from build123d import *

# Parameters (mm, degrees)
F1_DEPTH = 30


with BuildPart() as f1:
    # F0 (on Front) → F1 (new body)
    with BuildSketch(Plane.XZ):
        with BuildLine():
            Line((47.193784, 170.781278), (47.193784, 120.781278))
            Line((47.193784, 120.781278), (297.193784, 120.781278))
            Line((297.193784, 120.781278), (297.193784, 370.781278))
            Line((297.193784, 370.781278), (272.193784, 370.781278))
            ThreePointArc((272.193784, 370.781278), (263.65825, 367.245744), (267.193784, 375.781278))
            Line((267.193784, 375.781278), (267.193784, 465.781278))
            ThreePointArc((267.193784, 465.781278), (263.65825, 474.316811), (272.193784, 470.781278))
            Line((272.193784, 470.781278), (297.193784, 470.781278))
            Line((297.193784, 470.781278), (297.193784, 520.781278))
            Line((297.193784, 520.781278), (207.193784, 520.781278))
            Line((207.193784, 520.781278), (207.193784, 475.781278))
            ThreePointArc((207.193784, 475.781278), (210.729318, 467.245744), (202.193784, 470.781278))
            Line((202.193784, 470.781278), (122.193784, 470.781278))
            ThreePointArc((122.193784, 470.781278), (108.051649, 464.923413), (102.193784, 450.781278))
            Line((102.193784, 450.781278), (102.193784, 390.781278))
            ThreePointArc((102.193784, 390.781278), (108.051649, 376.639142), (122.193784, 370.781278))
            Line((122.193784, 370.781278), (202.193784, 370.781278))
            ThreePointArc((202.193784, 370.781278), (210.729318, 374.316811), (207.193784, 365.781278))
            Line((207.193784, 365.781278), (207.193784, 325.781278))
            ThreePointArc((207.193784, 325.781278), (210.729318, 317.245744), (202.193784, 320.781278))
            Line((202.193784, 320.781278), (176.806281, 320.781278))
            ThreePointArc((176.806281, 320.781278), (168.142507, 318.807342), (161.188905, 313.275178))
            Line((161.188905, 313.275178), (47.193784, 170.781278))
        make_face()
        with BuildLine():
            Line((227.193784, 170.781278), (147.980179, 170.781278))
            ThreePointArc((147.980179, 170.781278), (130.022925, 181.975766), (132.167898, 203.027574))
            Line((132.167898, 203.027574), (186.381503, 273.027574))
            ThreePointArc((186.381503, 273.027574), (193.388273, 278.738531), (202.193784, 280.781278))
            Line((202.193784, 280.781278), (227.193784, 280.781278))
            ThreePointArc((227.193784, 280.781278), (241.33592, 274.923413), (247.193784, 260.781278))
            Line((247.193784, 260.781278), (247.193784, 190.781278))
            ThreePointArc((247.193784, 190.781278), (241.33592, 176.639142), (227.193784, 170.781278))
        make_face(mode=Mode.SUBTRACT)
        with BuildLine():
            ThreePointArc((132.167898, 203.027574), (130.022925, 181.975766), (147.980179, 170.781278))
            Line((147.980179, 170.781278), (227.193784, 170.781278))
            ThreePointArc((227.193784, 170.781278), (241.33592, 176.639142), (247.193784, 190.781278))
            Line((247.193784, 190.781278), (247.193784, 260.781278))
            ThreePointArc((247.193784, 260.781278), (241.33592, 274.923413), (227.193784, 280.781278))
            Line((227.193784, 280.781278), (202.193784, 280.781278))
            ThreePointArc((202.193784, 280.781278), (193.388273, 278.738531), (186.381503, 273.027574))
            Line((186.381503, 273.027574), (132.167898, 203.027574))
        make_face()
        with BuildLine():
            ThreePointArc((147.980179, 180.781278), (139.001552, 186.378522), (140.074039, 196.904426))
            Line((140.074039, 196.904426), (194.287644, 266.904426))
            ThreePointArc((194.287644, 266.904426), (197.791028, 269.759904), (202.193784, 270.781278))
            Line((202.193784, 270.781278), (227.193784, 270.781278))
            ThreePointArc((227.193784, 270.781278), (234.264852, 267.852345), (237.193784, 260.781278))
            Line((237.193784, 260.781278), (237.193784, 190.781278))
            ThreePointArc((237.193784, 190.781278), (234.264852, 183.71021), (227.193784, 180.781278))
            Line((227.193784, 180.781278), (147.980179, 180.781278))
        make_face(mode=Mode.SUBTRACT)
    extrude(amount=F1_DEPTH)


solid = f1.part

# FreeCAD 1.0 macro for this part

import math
import FreeCAD as App
import Part
import Sketcher
Q = App.Units.Quantity

doc = App.newDocument("Part")
body = doc.addObject("PartDesign::Body", "Body")

# Sketch on XZ plane
sketch1 = body.newObject("Sketcher::SketchObject", "Sketch")
sketch1.AttachmentSupport = (doc.getObject("XZ_Plane"), [""])
sketch1.MapMode = "FlatFace"
sketch1.addGeometry([
    Part.LineSegment(App.Vector(47.193784, 170.781278, 0), App.Vector(47.193784, 120.781278, 0)),  # 0
    Part.LineSegment(App.Vector(47.193784, 120.781278, 0), App.Vector(297.193784, 120.781278, 0)),  # 1
    Part.LineSegment(App.Vector(297.193784, 120.781278, 0), App.Vector(297.193784, 370.781278, 0)),  # 2
    Part.LineSegment(App.Vector(297.193784, 370.781278, 0), App.Vector(272.193784, 370.781278, 0)),  # 3
    Part.ArcOfCircle(Part.Circle(App.Vector(267.193784, 370.781278, 0), App.Vector(0, 0, 1), 5), math.radians(89.999999), math.radians(360.000001)),  # 4
    Part.LineSegment(App.Vector(267.193784, 375.781278, 0), App.Vector(267.193784, 465.781278, 0)),  # 5
    Part.ArcOfCircle(Part.Circle(App.Vector(267.193784, 470.781278, 0), App.Vector(0, 0, 1), 5), math.radians(0.000003), math.radians(269.999997)),  # 6
    Part.LineSegment(App.Vector(272.193784, 470.781278, 0), App.Vector(297.193784, 470.781278, 0)),  # 7
    Part.LineSegment(App.Vector(297.193784, 470.781278, 0), App.Vector(297.193784, 520.781278, 0)),  # 8
    Part.LineSegment(App.Vector(297.193784, 520.781278, 0), App.Vector(207.193784, 520.781278, 0)),  # 9
    Part.LineSegment(App.Vector(207.193784, 520.781278, 0), App.Vector(207.193784, 475.781278, 0)),  # 10
    Part.ArcOfCircle(Part.Circle(App.Vector(207.193784, 470.781278, 0), App.Vector(0, 0, 1), 5), math.radians(179.999999), math.radians(450.000001)),  # 11
    Part.LineSegment(App.Vector(202.193784, 470.781278, 0), App.Vector(122.193784, 470.781278, 0)),  # 12
    Part.ArcOfCircle(Part.Circle(App.Vector(122.193786, 450.781276, 0), App.Vector(0, 0, 1), 20.000002), math.radians(90.000006), math.radians(179.999994)),  # 13
    Part.LineSegment(App.Vector(102.193784, 450.781278, 0), App.Vector(102.193784, 390.781278, 0)),  # 14
    Part.ArcOfCircle(Part.Circle(App.Vector(122.193784, 390.781278, 0), App.Vector(0, 0, 1), 20), math.radians(-179.999999), math.radians(-90.000001)),  # 15
    Part.LineSegment(App.Vector(122.193784, 370.781278, 0), App.Vector(202.193784, 370.781278, 0)),  # 16
    Part.ArcOfCircle(Part.Circle(App.Vector(207.193784, 370.781278, 0), App.Vector(0, 0, 1), 5), math.radians(-89.999997), math.radians(179.999997)),  # 17
    Part.LineSegment(App.Vector(207.193784, 365.781278, 0), App.Vector(207.193784, 325.781278, 0)),  # 18
    Part.ArcOfCircle(Part.Circle(App.Vector(207.193784, 320.781278, 0), App.Vector(0, 0, 1), 5), math.radians(179.999999), math.radians(450.000001)),  # 19
    Part.LineSegment(App.Vector(202.193784, 320.781278, 0), App.Vector(176.806281, 320.781278, 0)),  # 20
    Part.ArcOfCircle(Part.Circle(App.Vector(176.806284, 300.781273, 0), App.Vector(0, 0, 1), 20.000005), math.radians(90.000009), math.radians(141.340189)),  # 21
    Part.LineSegment(App.Vector(161.188905, 313.275178, 0), App.Vector(47.193784, 170.781278, 0)),  # 22
    Part.LineSegment(App.Vector(227.193784, 180.781278, 0), App.Vector(147.980179, 180.781278, 0)),  # 23
    Part.ArcOfCircle(Part.Circle(App.Vector(147.980178, 190.781277, 0), App.Vector(0, 0, 1), 9.999999), math.radians(142.242927), math.radians(270.000003)),  # 24
    Part.LineSegment(App.Vector(140.074039, 196.904426, 0), App.Vector(194.287644, 266.904426, 0)),  # 25
    Part.ArcOfCircle(Part.Circle(App.Vector(202.193787, 260.781274, 0), App.Vector(0, 0, 1), 10.000004), math.radians(90.000015), math.radians(142.242921)),  # 26
    Part.LineSegment(App.Vector(202.193784, 270.781278, 0), App.Vector(227.193784, 270.781278, 0)),  # 27
    Part.ArcOfCircle(Part.Circle(App.Vector(227.193783, 260.781277, 0), App.Vector(0, 0, 1), 10.000001), math.radians(0.000006), math.radians(89.999994)),  # 28
    Part.LineSegment(App.Vector(237.193784, 260.781278, 0), App.Vector(237.193784, 190.781278, 0)),  # 29
    Part.ArcOfCircle(Part.Circle(App.Vector(227.193785, 190.781277, 0), App.Vector(0, 0, 1), 9.999999), math.radians(-90.000004), math.radians(0.000004)),  # 30
], False)
sketch1.addConstraint([
    Sketcher.Constraint("Coincident", 0, 2, 1, 1),
    Sketcher.Constraint("Coincident", 1, 2, 2, 1),
    Sketcher.Constraint("Coincident", 2, 2, 3, 1),
    Sketcher.Constraint("Coincident", 3, 2, 4, 2),
    Sketcher.Constraint("Coincident", 4, 1, 5, 1),
    Sketcher.Constraint("Coincident", 5, 2, 6, 2),
    Sketcher.Constraint("Coincident", 6, 1, 7, 1),
    Sketcher.Constraint("Coincident", 7, 2, 8, 1),
    Sketcher.Constraint("Coincident", 8, 2, 9, 1),
    Sketcher.Constraint("Coincident", 9, 2, 10, 1),
    Sketcher.Constraint("Coincident", 10, 2, 11, 2),
    Sketcher.Constraint("Coincident", 11, 1, 12, 1),
    Sketcher.Constraint("Tangent", 12, 2, 13, 1),
    Sketcher.Constraint("Tangent", 13, 2, 14, 1),
    Sketcher.Constraint("Tangent", 14, 2, 15, 1),
    Sketcher.Constraint("Tangent", 15, 2, 16, 1),
    Sketcher.Constraint("Coincident", 16, 2, 17, 2),
    Sketcher.Constraint("Coincident", 17, 1, 18, 1),
    Sketcher.Constraint("Coincident", 18, 2, 19, 2),
    Sketcher.Constraint("Coincident", 19, 1, 20, 1),
    Sketcher.Constraint("Tangent", 20, 2, 21, 1),
    Sketcher.Constraint("Tangent", 21, 2, 22, 1),
    Sketcher.Constraint("Coincident", 22, 2, 0, 1),
    Sketcher.Constraint("Tangent", 23, 2, 24, 2),
    Sketcher.Constraint("Tangent", 24, 1, 25, 1),
    Sketcher.Constraint("Tangent", 25, 2, 26, 2),
    Sketcher.Constraint("Tangent", 26, 1, 27, 1),
    Sketcher.Constraint("Tangent", 27, 2, 28, 2),
    Sketcher.Constraint("Tangent", 28, 1, 29, 1),
    Sketcher.Constraint("Tangent", 29, 2, 30, 2),
    Sketcher.Constraint("Tangent", 30, 1, 23, 1),
    Sketcher.Constraint("Vertical", 0),
    Sketcher.Constraint("Horizontal", 1),
    Sketcher.Constraint("Vertical", 2),
    Sketcher.Constraint("Horizontal", 3),
    Sketcher.Constraint("Vertical", 5),
    Sketcher.Constraint("Horizontal", 7),
    Sketcher.Constraint("Vertical", 8),
    Sketcher.Constraint("Horizontal", 9),
    Sketcher.Constraint("Vertical", 10),
    Sketcher.Constraint("Horizontal", 12),
    Sketcher.Constraint("Vertical", 14),
    Sketcher.Constraint("Horizontal", 16),
    Sketcher.Constraint("Vertical", 18),
    Sketcher.Constraint("Horizontal", 20),
    Sketcher.Constraint("Horizontal", 23),
    Sketcher.Constraint("Horizontal", 27),
    Sketcher.Constraint("Vertical", 29),
    Sketcher.Constraint("Equal", 4, 6),
    Sketcher.Constraint("Equal", 6, 11),
    Sketcher.Constraint("Equal", 13, 15),
    Sketcher.Constraint("Equal", 11, 17),
    Sketcher.Constraint("Equal", 17, 19),
    Sketcher.Constraint("Equal", 24, 28),
    Sketcher.Constraint("Equal", 28, 30),
    Sketcher.Constraint("Horizontal", 6, 3, 11, 3),
    Sketcher.Constraint("Horizontal", 4, 3, 17, 3),
    Sketcher.Constraint("Horizontal", 17, 3, 2, 2),
    Sketcher.Constraint("Horizontal", 11, 3, 6, 1),
    Sketcher.Constraint("Horizontal", 7, 2, 11, 1),
    Sketcher.Constraint("Horizontal", 3, 2, 15, 2),
    Sketcher.Constraint("Vertical", 4, 3, 6, 3),
    Sketcher.Constraint("Vertical", 11, 3, 17, 3),
    Sketcher.Constraint("Vertical", 17, 3, 19, 3),
    Sketcher.Constraint("Vertical", 6, 3, 4, 1),
    Sketcher.Constraint("Vertical", 2, 2, 7, 2),
    Sketcher.Constraint("Vertical", 19, 3, 9, 2),
    Sketcher.Constraint("Vertical", 10, 2, 17, 1),
    Sketcher.Constraint("Vertical", 19, 1, 26, 1),
    Sketcher.Constraint("Equal", 7, 27),
    Sketcher.Constraint("Equal", 1, 2),
    Sketcher.Constraint("Equal", 9, 5),
    Sketcher.Constraint("Equal", 0, 8),
    Sketcher.Constraint("Radius", 4, Q("5 mm")),
    Sketcher.Constraint("Radius", 15, Q("20 mm")),
    Sketcher.Constraint("Radius", 24, Q("9.999999 mm")),
    Sketcher.Constraint("DistanceX", 1, 1, 1, 2, Q("250 mm")),
    Sketcher.Constraint("DistanceX", 3, 2, 3, 1, Q("25 mm")),
    Sketcher.Constraint("DistanceX", 9, 2, 9, 1, Q("90 mm")),
    Sketcher.Constraint("DistanceX", 12, 2, 12, 1, Q("80 mm")),
    Sketcher.Constraint("DistanceY", 0, 2, 0, 1, Q("50 mm")),
    Sketcher.Constraint("DistanceY", 18, 2, 18, 1, Q("40 mm")),
    Sketcher.Constraint("DistanceY", 29, 2, 29, 1, Q("70 mm")),
    Sketcher.Constraint("DistanceY", 24, 3, 19, 3, Q("130 mm")),
    Sketcher.Constraint("DistanceY", 26, 3, 21, 3, Q("40 mm")),
    Sketcher.Constraint("DistanceY", 19, 1, 18, 2, Q("5 mm")),
    Sketcher.Constraint("Radius", 21, Q("20.000005 mm")),
    Sketcher.Constraint("DistanceX", 21, 3, 19, 3, Q("30.3875 mm")),
    Sketcher.Constraint("DistanceX", 23, 2, 23, 1, Q("79.213605 mm")),
    Sketcher.Constraint("DistanceY", -1, 1, 15, 3, Q("390.781278 mm")),
    Sketcher.Constraint("DistanceX", -1, 1, 24, 3, Q("147.980178 mm")),
])
pad1 = body.newObject("PartDesign::Pad", "Pad")
pad1.Profile = sketch1
pad1.Length = 30

doc.recompute()
